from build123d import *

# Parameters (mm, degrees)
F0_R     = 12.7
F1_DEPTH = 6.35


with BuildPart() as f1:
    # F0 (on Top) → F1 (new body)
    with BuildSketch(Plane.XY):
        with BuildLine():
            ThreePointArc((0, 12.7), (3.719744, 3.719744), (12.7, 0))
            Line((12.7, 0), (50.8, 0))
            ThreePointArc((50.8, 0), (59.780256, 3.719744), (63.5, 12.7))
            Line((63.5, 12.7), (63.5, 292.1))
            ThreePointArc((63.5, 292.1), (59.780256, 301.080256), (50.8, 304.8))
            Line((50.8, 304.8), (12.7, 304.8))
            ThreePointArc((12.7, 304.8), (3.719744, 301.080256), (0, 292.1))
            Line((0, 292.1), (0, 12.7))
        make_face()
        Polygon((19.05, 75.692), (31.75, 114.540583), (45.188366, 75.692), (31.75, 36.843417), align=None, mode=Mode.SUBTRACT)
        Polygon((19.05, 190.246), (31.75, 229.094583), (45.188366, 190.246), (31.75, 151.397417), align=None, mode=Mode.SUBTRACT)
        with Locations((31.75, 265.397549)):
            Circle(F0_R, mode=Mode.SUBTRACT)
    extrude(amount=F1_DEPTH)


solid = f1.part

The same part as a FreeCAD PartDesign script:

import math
import FreeCAD as App
import Part
import Sketcher

V = App.Vector
Q = App.Units.Quantity


def add_polygon(sketch, points):
    """Adds a closed chain of lines whose ends are joined by coincident constraints."""
    first, n = sketch.GeometryCount, len(points)
    for a, b in zip(points, points[1:] + points[:1]):
        sketch.addGeometry(Part.LineSegment(App.Vector(*a, 0), App.Vector(*b, 0)), False)
    for i in range(n):
        sketch.addConstraint(Sketcher.Constraint("Coincident", first + i, 2, first + (i + 1) % n, 1))

doc = App.newDocument("Part")
body = doc.addObject("PartDesign::Body", "Body")

# Sketch on XY plane
sketch1 = body.newObject("Sketcher::SketchObject", "Sketch")
sketch1.AttachmentSupport = (doc.getObject("XY_Plane"), [""])
sketch1.MapMode = "FlatFace"
sketch1.addGeometry(Part.ArcOfCircle(Part.Circle(V(13, 13, 0), V(0, 0, 1), 13), math.radians(-180), math.radians(-90)), False)  # 0
sketch1.addGeometry(Part.LineSegment(V(13, 0, 0), V(51, 0, 0)), False)  # 1
sketch1.addGeometry(Part.ArcOfCircle(Part.Circle(V(51, 13, 0), V(0, 0, 1), 13), math.radians(-90), math.radians(0)), False)  # 2
sketch1.addGeometry(Part.LineSegment(V(64, 13, 0), V(64, 292, 0)), False)  # 3
sketch1.addGeometry(Part.ArcOfCircle(Part.Circle(V(51, 292, 0), V(0, 0, 1), 13), math.radians(0), math.radians(90)), False)  # 4
sketch1.addGeometry(Part.LineSegment(V(51, 305, 0), V(13, 305, 0)), False)  # 5
sketch1.addGeometry(Part.ArcOfCircle(Part.Circle(V(13, 292, 0), V(0, 0, 1), 13), math.radians(90), math.radians(180)), False)  # 6
sketch1.addGeometry(Part.LineSegment(V(0, 292, 0), V(0, 13, 0)), False)  # 7
add_polygon(sketch1, [(32, 37), (19, 76), (32, 115), (45, 76)])  # lines 8-11
sketch1.addGeometry(Part.Circle(V(32, 265, 0), V(0, 0, 1), 13), False)  # 12
add_polygon(sketch1, [(32, 151), (19, 190), (32, 229), (45, 190)])  # lines 13-16
sketch1.addConstraint(Sketcher.Constraint("Tangent", 0, 2, 1, 1))
sketch1.addConstraint(Sketcher.Constraint("Tangent", 1, 2, 2, 1))
sketch1.addConstraint(Sketcher.Constraint("Tangent", 2, 2, 3, 1))
sketch1.addConstraint(Sketcher.Constraint("Tangent", 3, 2, 4, 1))
sketch1.addConstraint(Sketcher.Constraint("Tangent", 4, 2, 5, 1))
sketch1.addConstraint(Sketcher.Constraint("Tangent", 5, 2, 6, 1))
sketch1.addConstraint(Sketcher.Constraint("Tangent", 6, 2, 7, 1))
sketch1.addConstraint(Sketcher.Constraint("Tangent", 7, 2, 0, 1))
sketch1.addConstraint(Sketcher.Constraint("Horizontal", 1))
sketch1.addConstraint(Sketcher.Constraint("Vertical", 3))
sketch1.addConstraint(Sketcher.Constraint("Horizontal", 5))
sketch1.addConstraint(Sketcher.Constraint("Vertical", 7))
sketch1.addConstraint(Sketcher.Constraint("Equal", 0, 2))
sketch1.addConstraint(Sketcher.Constraint("Equal", 2, 4))
sketch1.addConstraint(Sketcher.Constraint("Equal", 4, 6))
sketch1.addConstraint(Sketcher.Constraint("Equal", 6, 12))
sketch1.addConstraint(Sketcher.Constraint("PointOnObject", 0, 2, -1))
sketch1.addConstraint(Sketcher.Constraint("PointOnObject", 6, 2, -2))
sketch1.addConstraint(Sketcher.Constraint("Parallel", 8, 13))
sketch1.addConstraint(Sketcher.Constraint("Parallel", 9, 14))
sketch1.addConstraint(Sketcher.Constraint("Parallel", 10, 15))
sketch1.addConstraint(Sketcher.Constraint("Parallel", 11, 16))
sketch1.addConstraint(Sketcher.Constraint("Horizontal", 8, 2, 10, 2))
sketch1.addConstraint(Sketcher.Constraint("Horizontal", 13, 2, 15, 2))
sketch1.addConstraint(Sketcher.Constraint("Vertical", 12, 3, 9, 2))
sketch1.addConstraint(Sketcher.Constraint("Vertical", 9, 2, 11, 2))
sketch1.addConstraint(Sketcher.Constraint("Vertical", 8, 2, 13, 2))
sketch1.addConstraint(Sketcher.Constraint("Vertical", 11, 2, 14, 2))
sketch1.addConstraint(Sketcher.Constraint("Equal", 8, 9))
sketch1.addConstraint(Sketcher.Constraint("Diameter", 12, Q("1 in")))
sketch1.addConstraint(Sketcher.Constraint("DistanceY", 3, 1, 3, 2, Q("11 in")))
sketch1.addConstraint(Sketcher.Constraint("DistanceX", 1, 1, 1, 2, Q("1.5 in")))
sketch1.addConstraint(Sketcher.Constraint("DistanceX", 8, 2, 9, 2, Q("0.5 in")))
sketch1.addConstraint(Sketcher.Constraint("DistanceX", -1, 1, 12, 3, Q("1.25 in")))
sketch1.addConstraint(Sketcher.Constraint("DistanceY", -1, 1, 8, 2, Q("2.98 in")))
sketch1.addConstraint(Sketcher.Constraint("DistanceY", -1, 1, 13, 2, Q("7.49 in")))
sketch1.addConstraint(Sketcher.Constraint("Distance", 8, 40.87178))
sketch1.addConstraint(Sketcher.Constraint("DistanceY", -1, 1, 12, 3, 265.397549))
sketch1.addConstraint(Sketcher.Constraint("Distance", 10, 41.107202))
pad1 = body.newObject("PartDesign::Pad", "Pad")
pad1.Profile = sketch1
pad1.Length = Q("0.25 in")

doc.recompute()
